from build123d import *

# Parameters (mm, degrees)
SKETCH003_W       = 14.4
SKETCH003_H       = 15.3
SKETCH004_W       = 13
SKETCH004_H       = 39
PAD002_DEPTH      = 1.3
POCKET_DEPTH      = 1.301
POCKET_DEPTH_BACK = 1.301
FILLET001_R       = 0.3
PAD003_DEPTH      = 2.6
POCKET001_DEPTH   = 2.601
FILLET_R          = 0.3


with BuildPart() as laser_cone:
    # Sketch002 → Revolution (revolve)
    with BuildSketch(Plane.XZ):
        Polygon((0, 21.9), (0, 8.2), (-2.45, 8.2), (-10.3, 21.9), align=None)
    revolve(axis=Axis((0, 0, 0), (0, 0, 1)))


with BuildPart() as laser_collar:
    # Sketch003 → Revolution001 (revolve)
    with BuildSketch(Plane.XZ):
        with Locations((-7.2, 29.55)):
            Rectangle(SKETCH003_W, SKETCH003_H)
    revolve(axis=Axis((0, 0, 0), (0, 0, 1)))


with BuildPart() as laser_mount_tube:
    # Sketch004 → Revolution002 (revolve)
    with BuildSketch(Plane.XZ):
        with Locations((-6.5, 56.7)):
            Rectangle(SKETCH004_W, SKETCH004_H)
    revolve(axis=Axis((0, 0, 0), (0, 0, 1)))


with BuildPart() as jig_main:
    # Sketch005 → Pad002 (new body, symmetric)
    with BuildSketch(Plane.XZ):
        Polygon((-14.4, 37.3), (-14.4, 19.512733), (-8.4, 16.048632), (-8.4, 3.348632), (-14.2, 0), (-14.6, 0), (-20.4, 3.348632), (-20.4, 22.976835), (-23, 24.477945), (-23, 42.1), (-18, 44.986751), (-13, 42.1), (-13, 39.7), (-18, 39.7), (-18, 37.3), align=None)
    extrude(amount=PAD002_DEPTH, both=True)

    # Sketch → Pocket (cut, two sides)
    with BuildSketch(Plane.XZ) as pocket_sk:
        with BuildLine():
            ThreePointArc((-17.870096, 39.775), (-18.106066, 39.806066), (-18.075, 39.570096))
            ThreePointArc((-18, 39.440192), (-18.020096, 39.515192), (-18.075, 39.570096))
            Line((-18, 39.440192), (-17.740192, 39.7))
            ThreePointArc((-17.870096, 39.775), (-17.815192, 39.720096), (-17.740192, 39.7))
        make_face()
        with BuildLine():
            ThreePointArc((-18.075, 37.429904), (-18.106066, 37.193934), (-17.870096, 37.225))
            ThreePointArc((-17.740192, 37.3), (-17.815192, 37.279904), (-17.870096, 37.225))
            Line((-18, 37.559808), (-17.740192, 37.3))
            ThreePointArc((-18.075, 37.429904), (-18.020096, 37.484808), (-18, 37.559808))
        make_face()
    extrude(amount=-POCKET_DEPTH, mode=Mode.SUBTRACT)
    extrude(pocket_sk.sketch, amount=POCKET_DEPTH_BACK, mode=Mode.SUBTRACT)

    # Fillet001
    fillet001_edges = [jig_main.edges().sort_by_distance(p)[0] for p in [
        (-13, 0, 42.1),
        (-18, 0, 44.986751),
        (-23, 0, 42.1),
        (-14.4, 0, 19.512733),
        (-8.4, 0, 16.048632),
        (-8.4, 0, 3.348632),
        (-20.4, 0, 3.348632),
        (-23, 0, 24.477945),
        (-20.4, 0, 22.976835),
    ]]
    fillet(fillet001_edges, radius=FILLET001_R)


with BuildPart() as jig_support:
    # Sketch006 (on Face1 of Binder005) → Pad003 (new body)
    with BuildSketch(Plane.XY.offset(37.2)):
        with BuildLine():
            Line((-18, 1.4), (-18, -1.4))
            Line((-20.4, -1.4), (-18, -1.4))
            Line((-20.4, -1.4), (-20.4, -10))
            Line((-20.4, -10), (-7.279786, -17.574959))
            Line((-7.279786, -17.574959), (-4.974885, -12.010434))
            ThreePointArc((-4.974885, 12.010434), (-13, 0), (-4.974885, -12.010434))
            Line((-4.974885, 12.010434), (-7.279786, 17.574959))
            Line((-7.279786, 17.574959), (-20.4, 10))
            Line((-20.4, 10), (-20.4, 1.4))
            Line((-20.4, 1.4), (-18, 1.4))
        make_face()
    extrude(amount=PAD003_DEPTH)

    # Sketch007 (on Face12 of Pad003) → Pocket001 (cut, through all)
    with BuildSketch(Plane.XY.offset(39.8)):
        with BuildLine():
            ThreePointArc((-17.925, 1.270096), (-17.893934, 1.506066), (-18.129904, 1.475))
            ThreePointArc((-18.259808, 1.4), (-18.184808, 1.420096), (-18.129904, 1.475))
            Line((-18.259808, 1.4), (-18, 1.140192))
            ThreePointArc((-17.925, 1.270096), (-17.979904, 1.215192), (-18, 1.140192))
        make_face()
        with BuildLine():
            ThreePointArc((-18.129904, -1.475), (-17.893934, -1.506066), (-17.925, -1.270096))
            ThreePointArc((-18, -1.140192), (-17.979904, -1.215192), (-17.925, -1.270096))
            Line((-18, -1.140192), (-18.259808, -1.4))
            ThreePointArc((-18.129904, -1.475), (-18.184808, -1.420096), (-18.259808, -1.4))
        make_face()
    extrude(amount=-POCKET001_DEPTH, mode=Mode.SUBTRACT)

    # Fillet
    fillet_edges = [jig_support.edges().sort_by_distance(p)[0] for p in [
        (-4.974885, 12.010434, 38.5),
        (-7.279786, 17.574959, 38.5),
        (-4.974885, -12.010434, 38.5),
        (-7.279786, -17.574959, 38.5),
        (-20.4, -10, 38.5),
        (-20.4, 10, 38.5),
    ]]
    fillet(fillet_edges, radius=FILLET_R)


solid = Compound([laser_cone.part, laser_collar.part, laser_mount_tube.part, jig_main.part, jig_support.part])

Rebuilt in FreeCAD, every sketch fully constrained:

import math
import FreeCAD as App
import Part
import Sketcher
from FreeCAD import Vector
Q = App.Units.Quantity


def edges_at(feature, points):
    """Names of the edges that pass closest to the given points."""
    edges = feature.Shape.Edges
    near = lambda p: min(range(len(edges)), key=lambda i: edges[i].distToShape(Part.Vertex(*p))[0])
    return sorted({f"Edge{near(p) + 1}" for p in points})

doc = App.newDocument("Part")
body = doc.addObject("PartDesign::Body", "Body")

# Sketch on XZ plane
sketch1 = body.newObject("Sketcher::SketchObject", "Sketch")
sketch1.AttachmentSupport = (doc.getObject("XZ_Plane"), [""])
sketch1.MapMode = "FlatFace"
sketch1.addGeometry([
    Part.LineSegment(Vector(0, 8.2, 0), Vector(0, 21.9, 0)),
    Part.LineSegment(Vector(0, 21.9, 0), Vector(-10.3, 21.9, 0)),
    Part.LineSegment(Vector(-10.3, 21.9, 0), Vector(-2.5, 8.2, 0)),
    Part.LineSegment(Vector(-2.5, 8.2, 0), Vector(0, 8.2, 0)),
], False)
sketch1.addConstraint([
    Sketcher.Constraint("Coincident", 0, 2, 1, 1),
    Sketcher.Constraint("Coincident", 1, 2, 2, 1),
    Sketcher.Constraint("Coincident", 2, 2, 3, 1),
    Sketcher.Constraint("Coincident", 3, 2, 0, 1),
    Sketcher.Constraint("Vertical", 0),
    Sketcher.Constraint("Horizontal", 1),
    Sketcher.Constraint("Horizontal", 3),
    Sketcher.Constraint("PointOnObject", 0, 2, -2),
    Sketcher.Constraint("DistanceX", 1, 2, 1, 1, Q("10.3 mm")),
    Sketcher.Constraint("DistanceY", 0, 1, 0, 2, Q("13.7 mm")),
    Sketcher.Constraint("DistanceX", 3, 1, 3, 2, Q("2.45 mm")),
    Sketcher.Constraint("DistanceY", -1, 1, 0, 2, Q("21.9 mm")),
])
revolution = body.newObject("PartDesign::Revolution", "Revolution")
revolution.Profile = sketch1
revolution.ReferenceAxis = (sketch1, ["V_Axis"])
revolution.Angle = 360
body2 = doc.addObject("PartDesign::Body", "Body001")

# Sketch on XZ plane
sketch2 = body2.newObject("Sketcher::SketchObject", "Sketch001")
sketch2.AttachmentSupport = (doc.getObject("XZ_Plane001"), [""])
sketch2.MapMode = "FlatFace"
sketch2.addGeometry([
    Part.LineSegment(Vector(-14, 37, 0), Vector(-14, 22, 0)),
    Part.LineSegment(Vector(-14, 22, 0), Vector(0, 22, 0)),
    Part.LineSegment(Vector(0, 22, 0), Vector(0, 37, 0)),
    Part.LineSegment(Vector(0, 37, 0), Vector(-14, 37, 0)),
], False)
sketch2.addConstraint([
    Sketcher.Constraint("Coincident", 0, 2, 1, 1),
    Sketcher.Constraint("Coincident", 1, 2, 2, 1),
    Sketcher.Constraint("Coincident", 2, 2, 3, 1),
    Sketcher.Constraint("Coincident", 3, 2, 0, 1),
    Sketcher.Constraint("Vertical", 0),
    Sketcher.Constraint("Horizontal", 1),
    Sketcher.Constraint("Vertical", 2),
    Sketcher.Constraint("Horizontal", 3),
    Sketcher.Constraint("PointOnObject", 1, 2, -2),
    Sketcher.Constraint("DistanceX", 1, 1, 1, 2, Q("14.4 mm")),
    Sketcher.Constraint("DistanceY", 0, 2, 0, 1, Q("15.3 mm")),
    Sketcher.Constraint("DistanceY", -1, 1, 0, 2, Q("21.9 mm")),
])
revolution2 = body2.newObject("PartDesign::Revolution", "Revolution001")
revolution2.Profile = sketch2
revolution2.ReferenceAxis = (sketch2, ["V_Axis"])
revolution2.Angle = 360
body3 = doc.addObject("PartDesign::Body", "Body002")

# Sketch on XZ plane
sketch3 = body3.newObject("Sketcher::SketchObject", "Sketch002")
sketch3.AttachmentSupport = (doc.getObject("XZ_Plane002"), [""])
sketch3.MapMode = "FlatFace"
sketch3.addGeometry([
    Part.LineSegment(Vector(-13, 76, 0), Vector(-13, 37, 0)),
    Part.LineSegment(Vector(-13, 37, 0), Vector(0, 37, 0)),
    Part.LineSegment(Vector(0, 37, 0), Vector(0, 76, 0)),
    Part.LineSegment(Vector(0, 76, 0), Vector(-13, 76, 0)),
], False)
sketch3.addConstraint([
    Sketcher.Constraint("Coincident", 0, 2, 1, 1),
    Sketcher.Constraint("Coincident", 1, 2, 2, 1),
    Sketcher.Constraint("Coincident", 2, 2, 3, 1),
    Sketcher.Constraint("Coincident", 3, 2, 0, 1),
    Sketcher.Constraint("Vertical", 0),
    Sketcher.Constraint("Horizontal", 1),
    Sketcher.Constraint("Vertical", 2),
    Sketcher.Constraint("Horizontal", 3),
    Sketcher.Constraint("PointOnObject", 1, 2, -2),
    Sketcher.Constraint("DistanceX", 1, 1, 1, 2, Q("13 mm")),
    Sketcher.Constraint("DistanceY", 0, 2, 0, 1, Q("39 mm")),
    Sketcher.Constraint("DistanceY", -1, 1, 0, 2, Q("37.2 mm")),
])
revolution3 = body3.newObject("PartDesign::Revolution", "Revolution002")
revolution3.Profile = sketch3
revolution3.ReferenceAxis = (sketch3, ["V_Axis"])
revolution3.Angle = 360
body4 = doc.addObject("PartDesign::Body", "Body003")

# Sketch on XZ plane
sketch4 = body4.newObject("Sketcher::SketchObject", "Sketch003")
sketch4.AttachmentSupport = (doc.getObject("XZ_Plane003"), [""])
sketch4.MapMode = "FlatFace"
sketch4.addGeometry([
    Part.LineSegment(Vector(-14.4, 19.51, 0), Vector(-14.4, 37.3, 0)),  # 0
    Part.LineSegment(Vector(-14.4, 37.3, 0), Vector(-18, 37.3, 0)),  # 1
    Part.LineSegment(Vector(-18, 37.3, 0), Vector(-18, 39.7, 0)),  # 2
    Part.LineSegment(Vector(-18, 39.7, 0), Vector(-13, 39.7, 0)),  # 3
    Part.LineSegment(Vector(-13, 39.7, 0), Vector(-13, 42.1, 0)),  # 4
    Part.LineSegment(Vector(-13, 42.1, 0), Vector(-18, 44.99, 0)),  # 5
    Part.LineSegment(Vector(-18, 44.99, 0), Vector(-23, 42.1, 0)),  # 6
    Part.LineSegment(Vector(-23, 42.1, 0), Vector(-23, 24.48, 0)),  # 7
    Part.LineSegment(Vector(-23, 24.48, 0), Vector(-20.4, 22.98, 0)),  # 8
    Part.LineSegment(Vector(-20.4, 22.98, 0), Vector(-20.4, 3.35, 0)),  # 9
    Part.LineSegment(Vector(-20.4, 3.35, 0), Vector(-14.6, 0, 0)),  # 10
    Part.LineSegment(Vector(-14.6, 0, 0), Vector(-14.2, 0, 0)),  # 11
    Part.LineSegment(Vector(-14.2, 0, 0), Vector(-8.4, 3.35, 0)),  # 12
    Part.LineSegment(Vector(-8.4, 3.35, 0), Vector(-8.4, 16.05, 0)),  # 13
    Part.LineSegment(Vector(-8.4, 16.05, 0), Vector(-14.4, 19.51, 0)),  # 14
], False)
sketch4.addConstraint([
    Sketcher.Constraint("Coincident", 0, 2, 1, 1),
    Sketcher.Constraint("Coincident", 1, 2, 2, 1),
    Sketcher.Constraint("Coincident", 2, 2, 3, 1),
    Sketcher.Constraint("Coincident", 3, 2, 4, 1),
    Sketcher.Constraint("Coincident", 4, 2, 5, 1),
    Sketcher.Constraint("Coincident", 5, 2, 6, 1),
    Sketcher.Constraint("Coincident", 6, 2, 7, 1),
    Sketcher.Constraint("Coincident", 7, 2, 8, 1),
    Sketcher.Constraint("Coincident", 8, 2, 9, 1),
    Sketcher.Constraint("Coincident", 9, 2, 10, 1),
    Sketcher.Constraint("Coincident", 10, 2, 11, 1),
    Sketcher.Constraint("Coincident", 11, 2, 12, 1),
    Sketcher.Constraint("Coincident", 12, 2, 13, 1),
    Sketcher.Constraint("Coincident", 13, 2, 14, 1),
    Sketcher.Constraint("Coincident", 14, 2, 0, 1),
    Sketcher.Constraint("Vertical", 0),
    Sketcher.Constraint("Horizontal", 1),
    Sketcher.Constraint("Vertical", 2),
    Sketcher.Constraint("Horizontal", 3),
    Sketcher.Constraint("Vertical", 4),
    Sketcher.Constraint("Vertical", 7),
    Sketcher.Constraint("Vertical", 9),
    Sketcher.Constraint("Horizontal", 11),
    Sketcher.Constraint("Vertical", 13),
    Sketcher.Constraint("PointOnObject", 10, 2, -1),
    Sketcher.Constraint("Parallel", 5, 8),
    Sketcher.Constraint("Parallel", 8, 10),
    Sketcher.Constraint("Parallel", 6, 12),
    Sketcher.Constraint("Parallel", 10, 14),
    Sketcher.Constraint("Horizontal", 4, 2, 6, 2),
    Sketcher.Constraint("Horizontal", 9, 2, 12, 2),
    Sketcher.Constraint("Vertical", 2, 2, 5, 2),
    Sketcher.Constraint("Equal", 2, 4),
    Sketcher.Constraint("Equal", 5, 6),
    Sketcher.Constraint("DistanceX", 3, 1, 3, 2, Q("5 mm")),
    Sketcher.Constraint("Angle", 5, Q("150.000003 deg")),
    Sketcher.Constraint("DistanceX", 1, 2, 1, 1, Q("3.6 mm")),
    Sketcher.Constraint("DistanceX", 11, 1, 11, 2, Q("0.4 mm")),
    Sketcher.Constraint("DistanceY", 2, 1, 2, 2, Q("2.4 mm")),
    Sketcher.Constraint("DistanceY", 13, 1, 13, 2, Q("12.7 mm")),
    Sketcher.Constraint("DistanceX", 1, 2, -1, 1, Q("18 mm")),
    Sketcher.Constraint("DistanceX", 8, 2, 0, 2, Q("6 mm")),
    Sketcher.Constraint("DistanceX", 9, 2, 12, 2, Q("12 mm")),
    Sketcher.Constraint("DistanceY", -1, 1, 0, 2, Q("37.3 mm")),
    Sketcher.Constraint("DistanceY", 7, 2, 7, 1, Q("17.622055 mm")),
])
pad1 = body4.newObject("PartDesign::Pad", "Pad")
pad1.Profile = sketch4
pad1.Length = 2.6
pad1.Midplane = True

# Sketch on XZ plane
sketch5 = body4.newObject("Sketcher::SketchObject", "Sketch004")
sketch5.AttachmentSupport = (doc.getObject("XZ_Plane003"), [""])
sketch5.MapMode = "FlatFace"
sketch5.addGeometry([
    Part.ArcOfCircle(Part.Circle(Vector(-18, 39.7, 0), Vector(0, 0, 1), 0.15), math.radians(30), math.radians(240)),  # 0
    Part.ArcOfCircle(Part.Circle(Vector(-18.15, 39.44, 0), Vector(0, 0, 1), 0.15), math.radians(0), math.radians(60)),  # 1
    Part.LineSegment(Vector(-18, 39.44, 0), Vector(-17.74, 39.7, 0)),  # 2
    Part.ArcOfCircle(Part.Circle(Vector(-17.74, 39.85, 0), Vector(0, 0, 1), 0.15), math.radians(-150), math.radians(-90)),  # 3
    Part.ArcOfCircle(Part.Circle(Vector(-18, 37.3, 0), Vector(0, 0, 1), 0.15), math.radians(120), math.radians(330)),  # 4
    Part.ArcOfCircle(Part.Circle(Vector(-17.74, 37.15, 0), Vector(0, 0, 1), 0.15), math.radians(90), math.radians(150)),  # 5
    Part.LineSegment(Vector(-17.74, 37.3, 0), Vector(-18, 37.56, 0)),  # 6
    Part.ArcOfCircle(Part.Circle(Vector(-18.15, 37.56, 0), Vector(0, 0, 1), 0.15), math.radians(-60), math.radians(0)),  # 7
], False)
sketch5.addConstraint([
    Sketcher.Constraint("Coincident", 0, 2, 1, 2),
    Sketcher.Constraint("Coincident", 1, 1, 2, 1),
    Sketcher.Constraint("Coincident", 2, 2, 3, 2),
    Sketcher.Constraint("Coincident", 3, 1, 0, 1),
    Sketcher.Constraint("Coincident", 4, 2, 5, 2),
    Sketcher.Constraint("Coincident", 5, 1, 6, 1),
    Sketcher.Constraint("Coincident", 6, 2, 7, 2),
    Sketcher.Constraint("Coincident", 7, 1, 4, 1),
    Sketcher.Constraint("Equal", 0, 1),
    Sketcher.Constraint("Equal", 1, 3),
    Sketcher.Constraint("Equal", 3, 4),
    Sketcher.Constraint("Equal", 4, 5),
    Sketcher.Constraint("Equal", 5, 7),
    Sketcher.Constraint("Perpendicular", 2, 6),
    Sketcher.Constraint("Horizontal", 0, 3, 2, 2),
    Sketcher.Constraint("Horizontal", 4, 3, 5, 1),
    Sketcher.Constraint("Horizontal", 7, 3, 6, 2),
    Sketcher.Constraint("Vertical", 0, 3, 4, 3),
    Sketcher.Constraint("Vertical", 1, 3, 7, 3),
    Sketcher.Constraint("Vertical", 4, 3, 1, 1),
    Sketcher.Constraint("Vertical", 5, 3, 2, 2),
    Sketcher.Constraint("Vertical", 3, 1, 4, 2),
    Sketcher.Constraint("Vertical", 2, 2, 5, 1),
    Sketcher.Constraint("Vertical", 0, 2, 7, 1),
    Sketcher.Constraint("Radius", 0, Q("0.15 mm")),
    Sketcher.Constraint("DistanceX", 0, 3, -1, 1, Q("18 mm")),
    Sketcher.Constraint("DistanceY", -1, 1, 0, 3, Q("39.7 mm")),
    Sketcher.Constraint("DistanceY", -1, 1, 4, 3, Q("37.3 mm")),
    Sketcher.Constraint("DistanceX", 0, 2, -1, 1, Q("18.075 mm")),
    Sketcher.Constraint("DistanceY", -1, 1, 3, 1, Q("39.775 mm")),
])
pocket1 = body4.newObject("PartDesign::Pocket", "Pocket")
pocket1.Profile = sketch5
pocket1.Type = "ThroughAll"
pocket1.Midplane = True
doc.recompute()

fillet = body4.newObject("PartDesign::Fillet", "Fillet")
fillet.Base = (pocket1, edges_at(pocket1, [
    (-13, 0, 42.1),
    (-18, 0, 44.987),
    (-23, 0, 42.1),
    (-14.4, 0, 19.513),
    (-8.4, 0, 16.049),
    (-8.4, 0, 3.349),
    (-20.4, 0, 3.349),
    (-23, 0, 24.478),
    (-20.4, 0, 22.977),
]))
fillet.Radius = 0.3
body5 = doc.addObject("PartDesign::Body", "Body004")

# Sketch on XY plane
sketch6 = body5.newObject("Sketcher::SketchObject", "Sketch005")
sketch6.AttachmentSupport = (doc.getObject("XY_Plane004"), [""])
sketch6.MapMode = "FlatFace"
sketch6.AttachmentOffset = App.Placement(Vector(0, 0, 37.2), App.Rotation())
sketch6.addGeometry([
    Part.LineSegment(Vector(-18, 1.4, 0), Vector(-18, -1.4, 0)),  # 0
    Part.LineSegment(Vector(-18, -1.4, 0), Vector(-20.4, -1.4, 0)),  # 1
    Part.LineSegment(Vector(-20.4, -1.4, 0), Vector(-20.4, -10, 0)),  # 2
    Part.LineSegment(Vector(-20.4, -10, 0), Vector(-7.3, -17.6, 0)),  # 3
    Part.LineSegment(Vector(-7.3, -17.6, 0), Vector(-5, -12, 0)),  # 4
    Part.ArcOfCircle(Part.Circle(Vector(0, 0, 0), Vector(0, 0, 1), 13), math.radians(113), math.radians(247)),  # 5
    Part.LineSegment(Vector(-5, 12, 0), Vector(-7.3, 17.6, 0)),  # 6
    Part.LineSegment(Vector(-7.3, 17.6, 0), Vector(-20.4, 10, 0)),  # 7
    Part.LineSegment(Vector(-20.4, 10, 0), Vector(-20.4, 1.4, 0)),  # 8
    Part.LineSegment(Vector(-20.4, 1.4, 0), Vector(-18, 1.4, 0)),  # 9
], False)
sketch6.addConstraint([
    Sketcher.Constraint("Coincident", 0, 2, 1, 1),
    Sketcher.Constraint("Coincident", 1, 2, 2, 1),
    Sketcher.Constraint("Coincident", 2, 2, 3, 1),
    Sketcher.Constraint("Coincident", 3, 2, 4, 1),
    Sketcher.Constraint("Coincident", 4, 2, 5, 2),
    Sketcher.Constraint("Coincident", 5, 1, 6, 1),
    Sketcher.Constraint("Coincident", 6, 2, 7, 1),
    Sketcher.Constraint("Coincident", 7, 2, 8, 1),
    Sketcher.Constraint("Coincident", 8, 2, 9, 1),
    Sketcher.Constraint("Coincident", 9, 2, 0, 1),
    Sketcher.Constraint("Vertical", 0),
    Sketcher.Constraint("Horizontal", 1),
    Sketcher.Constraint("Vertical", 2),
    Sketcher.Constraint("Vertical", 8),
    Sketcher.Constraint("Horizontal", 9),
    Sketcher.Constraint("Coincident", 5, 3, -1, 1),
    Sketcher.Constraint("Symmetric", 3, 2, 6, 2, -1),
    Sketcher.Constraint("Symmetric", 2, 2, 7, 2, -1),
    Sketcher.Constraint("Vertical", 4, 2, 5, 1),
    Sketcher.Constraint("Equal", 2, 8),
    Sketcher.Constraint("Radius", 5, Q("13 mm")),
    Sketcher.Constraint("Angle", 3, Q("-30 deg")),
    Sketcher.Constraint("DistanceX", 1, 2, 1, 1, Q("2.4 mm")),
    Sketcher.Constraint("DistanceY", 0, 2, 0, 1, Q("2.8 mm")),
    Sketcher.Constraint("DistanceY", 2, 2, 2, 1, Q("8.6 mm")),
    Sketcher.Constraint("DistanceX", 0, 2, -1, 1, Q("18 mm")),
    Sketcher.Constraint("Angle", 4, Q("67.500006 deg")),
    Sketcher.Constraint("Distance", 4, Q("6.022998 mm")),
])
pad2 = body5.newObject("PartDesign::Pad", "Pad001")
pad2.Profile = sketch6
pad2.Length = 2.6

# Sketch on XY plane
sketch7 = body5.newObject("Sketcher::SketchObject", "Sketch006")
sketch7.AttachmentSupport = (doc.getObject("XY_Plane004"), [""])
sketch7.MapMode = "FlatFace"
sketch7.AttachmentOffset = App.Placement(Vector(0, 0, 39.8), App.Rotation())
sketch7.addGeometry([
    Part.ArcOfCircle(Part.Circle(Vector(-18, 1.4, 0), Vector(0, 0, 1), 0.15), math.radians(-60), math.radians(150)),  # 0
    Part.ArcOfCircle(Part.Circle(Vector(-18.26, 1.55, 0), Vector(0, 0, 1), 0.15), math.radians(-90), math.radians(-30)),  # 1
    Part.LineSegment(Vector(-18.26, 1.4, 0), Vector(-18, 1.14, 0)),  # 2
    Part.ArcOfCircle(Part.Circle(Vector(-17.85, 1.14, 0), Vector(0, 0, 1), 0.15), math.radians(120), math.radians(180)),  # 3
    Part.ArcOfCircle(Part.Circle(Vector(-18, -1.4, 0), Vector(0, 0, 1), 0.15), math.radians(-150), math.radians(60)),  # 4
    Part.ArcOfCircle(Part.Circle(Vector(-17.85, -1.14, 0), Vector(0, 0, 1), 0.15), math.radians(180), math.radians(240)),  # 5
    Part.LineSegment(Vector(-18, -1.14, 0), Vector(-18.26, -1.4, 0)),  # 6
    Part.ArcOfCircle(Part.Circle(Vector(-18.26, -1.55, 0), Vector(0, 0, 1), 0.15), math.radians(30), math.radians(90)),  # 7
], False)
sketch7.addConstraint([
    Sketcher.Constraint("Coincident", 0, 2, 1, 2),
    Sketcher.Constraint("Coincident", 1, 1, 2, 1),
    Sketcher.Constraint("Coincident", 2, 2, 3, 2),
    Sketcher.Constraint("Coincident", 3, 1, 0, 1),
    Sketcher.Constraint("Coincident", 4, 2, 5, 2),
    Sketcher.Constraint("Coincident", 5, 1, 6, 1),
    Sketcher.Constraint("Coincident", 6, 2, 7, 2),
    Sketcher.Constraint("Coincident", 7, 1, 4, 1),
    Sketcher.Constraint("Equal", 0, 1),
    Sketcher.Constraint("Equal", 1, 3),
    Sketcher.Constraint("Equal", 3, 4),
    Sketcher.Constraint("Equal", 4, 5),
    Sketcher.Constraint("Equal", 5, 7),
    Sketcher.Constraint("Symmetric", 0, 3, 4, 3, -1),
    Sketcher.Constraint("Symmetric", 2, 2, 5, 1, -1),
    Sketcher.Constraint("Symmetric", 1, 1, 6, 2, -1),
    Sketcher.Constraint("Perpendicular", 2, 6),
    Sketcher.Constraint("Horizontal", 0, 3, 1, 1),
    Sketcher.Constraint("Horizontal", 3, 3, 2, 2),
    Sketcher.Constraint("Vertical", 7, 3, 1, 1),
    Sketcher.Constraint("Vertical", 3, 1, 4, 2),
    Sketcher.Constraint("Vertical", 0, 2, 7, 1),
    Sketcher.Constraint("Radius", 0, Q("0.15 mm")),
    Sketcher.Constraint("DistanceX", 0, 3, -1, 1, Q("18 mm")),
    Sketcher.Constraint("DistanceY", -1, 1, 0, 3, Q("1.4 mm")),
    Sketcher.Constraint("DistanceY", -1, 1, 0, 2, Q("1.475 mm")),
    Sketcher.Constraint("DistanceX", 3, 1, -1, 1, Q("17.925 mm")),
])
pocket2 = body5.newObject("PartDesign::Pocket", "Pocket001")
pocket2.Profile = sketch7
pocket2.Type = "ThroughAll"
doc.recompute()

fillet2 = body5.newObject("PartDesign::Fillet", "Fillet001")
fillet2.Base = (pocket2, edges_at(pocket2, [
    (-4.975, 12.01, 38.5),
    (-7.28, 17.575, 38.5),
    (-4.975, -12.01, 38.5),
    (-7.28, -17.575, 38.5),
    (-20.4, -10, 38.5),
    (-20.4, 10, 38.5),
]))
fillet2.Radius = 0.3

doc.recompute()
